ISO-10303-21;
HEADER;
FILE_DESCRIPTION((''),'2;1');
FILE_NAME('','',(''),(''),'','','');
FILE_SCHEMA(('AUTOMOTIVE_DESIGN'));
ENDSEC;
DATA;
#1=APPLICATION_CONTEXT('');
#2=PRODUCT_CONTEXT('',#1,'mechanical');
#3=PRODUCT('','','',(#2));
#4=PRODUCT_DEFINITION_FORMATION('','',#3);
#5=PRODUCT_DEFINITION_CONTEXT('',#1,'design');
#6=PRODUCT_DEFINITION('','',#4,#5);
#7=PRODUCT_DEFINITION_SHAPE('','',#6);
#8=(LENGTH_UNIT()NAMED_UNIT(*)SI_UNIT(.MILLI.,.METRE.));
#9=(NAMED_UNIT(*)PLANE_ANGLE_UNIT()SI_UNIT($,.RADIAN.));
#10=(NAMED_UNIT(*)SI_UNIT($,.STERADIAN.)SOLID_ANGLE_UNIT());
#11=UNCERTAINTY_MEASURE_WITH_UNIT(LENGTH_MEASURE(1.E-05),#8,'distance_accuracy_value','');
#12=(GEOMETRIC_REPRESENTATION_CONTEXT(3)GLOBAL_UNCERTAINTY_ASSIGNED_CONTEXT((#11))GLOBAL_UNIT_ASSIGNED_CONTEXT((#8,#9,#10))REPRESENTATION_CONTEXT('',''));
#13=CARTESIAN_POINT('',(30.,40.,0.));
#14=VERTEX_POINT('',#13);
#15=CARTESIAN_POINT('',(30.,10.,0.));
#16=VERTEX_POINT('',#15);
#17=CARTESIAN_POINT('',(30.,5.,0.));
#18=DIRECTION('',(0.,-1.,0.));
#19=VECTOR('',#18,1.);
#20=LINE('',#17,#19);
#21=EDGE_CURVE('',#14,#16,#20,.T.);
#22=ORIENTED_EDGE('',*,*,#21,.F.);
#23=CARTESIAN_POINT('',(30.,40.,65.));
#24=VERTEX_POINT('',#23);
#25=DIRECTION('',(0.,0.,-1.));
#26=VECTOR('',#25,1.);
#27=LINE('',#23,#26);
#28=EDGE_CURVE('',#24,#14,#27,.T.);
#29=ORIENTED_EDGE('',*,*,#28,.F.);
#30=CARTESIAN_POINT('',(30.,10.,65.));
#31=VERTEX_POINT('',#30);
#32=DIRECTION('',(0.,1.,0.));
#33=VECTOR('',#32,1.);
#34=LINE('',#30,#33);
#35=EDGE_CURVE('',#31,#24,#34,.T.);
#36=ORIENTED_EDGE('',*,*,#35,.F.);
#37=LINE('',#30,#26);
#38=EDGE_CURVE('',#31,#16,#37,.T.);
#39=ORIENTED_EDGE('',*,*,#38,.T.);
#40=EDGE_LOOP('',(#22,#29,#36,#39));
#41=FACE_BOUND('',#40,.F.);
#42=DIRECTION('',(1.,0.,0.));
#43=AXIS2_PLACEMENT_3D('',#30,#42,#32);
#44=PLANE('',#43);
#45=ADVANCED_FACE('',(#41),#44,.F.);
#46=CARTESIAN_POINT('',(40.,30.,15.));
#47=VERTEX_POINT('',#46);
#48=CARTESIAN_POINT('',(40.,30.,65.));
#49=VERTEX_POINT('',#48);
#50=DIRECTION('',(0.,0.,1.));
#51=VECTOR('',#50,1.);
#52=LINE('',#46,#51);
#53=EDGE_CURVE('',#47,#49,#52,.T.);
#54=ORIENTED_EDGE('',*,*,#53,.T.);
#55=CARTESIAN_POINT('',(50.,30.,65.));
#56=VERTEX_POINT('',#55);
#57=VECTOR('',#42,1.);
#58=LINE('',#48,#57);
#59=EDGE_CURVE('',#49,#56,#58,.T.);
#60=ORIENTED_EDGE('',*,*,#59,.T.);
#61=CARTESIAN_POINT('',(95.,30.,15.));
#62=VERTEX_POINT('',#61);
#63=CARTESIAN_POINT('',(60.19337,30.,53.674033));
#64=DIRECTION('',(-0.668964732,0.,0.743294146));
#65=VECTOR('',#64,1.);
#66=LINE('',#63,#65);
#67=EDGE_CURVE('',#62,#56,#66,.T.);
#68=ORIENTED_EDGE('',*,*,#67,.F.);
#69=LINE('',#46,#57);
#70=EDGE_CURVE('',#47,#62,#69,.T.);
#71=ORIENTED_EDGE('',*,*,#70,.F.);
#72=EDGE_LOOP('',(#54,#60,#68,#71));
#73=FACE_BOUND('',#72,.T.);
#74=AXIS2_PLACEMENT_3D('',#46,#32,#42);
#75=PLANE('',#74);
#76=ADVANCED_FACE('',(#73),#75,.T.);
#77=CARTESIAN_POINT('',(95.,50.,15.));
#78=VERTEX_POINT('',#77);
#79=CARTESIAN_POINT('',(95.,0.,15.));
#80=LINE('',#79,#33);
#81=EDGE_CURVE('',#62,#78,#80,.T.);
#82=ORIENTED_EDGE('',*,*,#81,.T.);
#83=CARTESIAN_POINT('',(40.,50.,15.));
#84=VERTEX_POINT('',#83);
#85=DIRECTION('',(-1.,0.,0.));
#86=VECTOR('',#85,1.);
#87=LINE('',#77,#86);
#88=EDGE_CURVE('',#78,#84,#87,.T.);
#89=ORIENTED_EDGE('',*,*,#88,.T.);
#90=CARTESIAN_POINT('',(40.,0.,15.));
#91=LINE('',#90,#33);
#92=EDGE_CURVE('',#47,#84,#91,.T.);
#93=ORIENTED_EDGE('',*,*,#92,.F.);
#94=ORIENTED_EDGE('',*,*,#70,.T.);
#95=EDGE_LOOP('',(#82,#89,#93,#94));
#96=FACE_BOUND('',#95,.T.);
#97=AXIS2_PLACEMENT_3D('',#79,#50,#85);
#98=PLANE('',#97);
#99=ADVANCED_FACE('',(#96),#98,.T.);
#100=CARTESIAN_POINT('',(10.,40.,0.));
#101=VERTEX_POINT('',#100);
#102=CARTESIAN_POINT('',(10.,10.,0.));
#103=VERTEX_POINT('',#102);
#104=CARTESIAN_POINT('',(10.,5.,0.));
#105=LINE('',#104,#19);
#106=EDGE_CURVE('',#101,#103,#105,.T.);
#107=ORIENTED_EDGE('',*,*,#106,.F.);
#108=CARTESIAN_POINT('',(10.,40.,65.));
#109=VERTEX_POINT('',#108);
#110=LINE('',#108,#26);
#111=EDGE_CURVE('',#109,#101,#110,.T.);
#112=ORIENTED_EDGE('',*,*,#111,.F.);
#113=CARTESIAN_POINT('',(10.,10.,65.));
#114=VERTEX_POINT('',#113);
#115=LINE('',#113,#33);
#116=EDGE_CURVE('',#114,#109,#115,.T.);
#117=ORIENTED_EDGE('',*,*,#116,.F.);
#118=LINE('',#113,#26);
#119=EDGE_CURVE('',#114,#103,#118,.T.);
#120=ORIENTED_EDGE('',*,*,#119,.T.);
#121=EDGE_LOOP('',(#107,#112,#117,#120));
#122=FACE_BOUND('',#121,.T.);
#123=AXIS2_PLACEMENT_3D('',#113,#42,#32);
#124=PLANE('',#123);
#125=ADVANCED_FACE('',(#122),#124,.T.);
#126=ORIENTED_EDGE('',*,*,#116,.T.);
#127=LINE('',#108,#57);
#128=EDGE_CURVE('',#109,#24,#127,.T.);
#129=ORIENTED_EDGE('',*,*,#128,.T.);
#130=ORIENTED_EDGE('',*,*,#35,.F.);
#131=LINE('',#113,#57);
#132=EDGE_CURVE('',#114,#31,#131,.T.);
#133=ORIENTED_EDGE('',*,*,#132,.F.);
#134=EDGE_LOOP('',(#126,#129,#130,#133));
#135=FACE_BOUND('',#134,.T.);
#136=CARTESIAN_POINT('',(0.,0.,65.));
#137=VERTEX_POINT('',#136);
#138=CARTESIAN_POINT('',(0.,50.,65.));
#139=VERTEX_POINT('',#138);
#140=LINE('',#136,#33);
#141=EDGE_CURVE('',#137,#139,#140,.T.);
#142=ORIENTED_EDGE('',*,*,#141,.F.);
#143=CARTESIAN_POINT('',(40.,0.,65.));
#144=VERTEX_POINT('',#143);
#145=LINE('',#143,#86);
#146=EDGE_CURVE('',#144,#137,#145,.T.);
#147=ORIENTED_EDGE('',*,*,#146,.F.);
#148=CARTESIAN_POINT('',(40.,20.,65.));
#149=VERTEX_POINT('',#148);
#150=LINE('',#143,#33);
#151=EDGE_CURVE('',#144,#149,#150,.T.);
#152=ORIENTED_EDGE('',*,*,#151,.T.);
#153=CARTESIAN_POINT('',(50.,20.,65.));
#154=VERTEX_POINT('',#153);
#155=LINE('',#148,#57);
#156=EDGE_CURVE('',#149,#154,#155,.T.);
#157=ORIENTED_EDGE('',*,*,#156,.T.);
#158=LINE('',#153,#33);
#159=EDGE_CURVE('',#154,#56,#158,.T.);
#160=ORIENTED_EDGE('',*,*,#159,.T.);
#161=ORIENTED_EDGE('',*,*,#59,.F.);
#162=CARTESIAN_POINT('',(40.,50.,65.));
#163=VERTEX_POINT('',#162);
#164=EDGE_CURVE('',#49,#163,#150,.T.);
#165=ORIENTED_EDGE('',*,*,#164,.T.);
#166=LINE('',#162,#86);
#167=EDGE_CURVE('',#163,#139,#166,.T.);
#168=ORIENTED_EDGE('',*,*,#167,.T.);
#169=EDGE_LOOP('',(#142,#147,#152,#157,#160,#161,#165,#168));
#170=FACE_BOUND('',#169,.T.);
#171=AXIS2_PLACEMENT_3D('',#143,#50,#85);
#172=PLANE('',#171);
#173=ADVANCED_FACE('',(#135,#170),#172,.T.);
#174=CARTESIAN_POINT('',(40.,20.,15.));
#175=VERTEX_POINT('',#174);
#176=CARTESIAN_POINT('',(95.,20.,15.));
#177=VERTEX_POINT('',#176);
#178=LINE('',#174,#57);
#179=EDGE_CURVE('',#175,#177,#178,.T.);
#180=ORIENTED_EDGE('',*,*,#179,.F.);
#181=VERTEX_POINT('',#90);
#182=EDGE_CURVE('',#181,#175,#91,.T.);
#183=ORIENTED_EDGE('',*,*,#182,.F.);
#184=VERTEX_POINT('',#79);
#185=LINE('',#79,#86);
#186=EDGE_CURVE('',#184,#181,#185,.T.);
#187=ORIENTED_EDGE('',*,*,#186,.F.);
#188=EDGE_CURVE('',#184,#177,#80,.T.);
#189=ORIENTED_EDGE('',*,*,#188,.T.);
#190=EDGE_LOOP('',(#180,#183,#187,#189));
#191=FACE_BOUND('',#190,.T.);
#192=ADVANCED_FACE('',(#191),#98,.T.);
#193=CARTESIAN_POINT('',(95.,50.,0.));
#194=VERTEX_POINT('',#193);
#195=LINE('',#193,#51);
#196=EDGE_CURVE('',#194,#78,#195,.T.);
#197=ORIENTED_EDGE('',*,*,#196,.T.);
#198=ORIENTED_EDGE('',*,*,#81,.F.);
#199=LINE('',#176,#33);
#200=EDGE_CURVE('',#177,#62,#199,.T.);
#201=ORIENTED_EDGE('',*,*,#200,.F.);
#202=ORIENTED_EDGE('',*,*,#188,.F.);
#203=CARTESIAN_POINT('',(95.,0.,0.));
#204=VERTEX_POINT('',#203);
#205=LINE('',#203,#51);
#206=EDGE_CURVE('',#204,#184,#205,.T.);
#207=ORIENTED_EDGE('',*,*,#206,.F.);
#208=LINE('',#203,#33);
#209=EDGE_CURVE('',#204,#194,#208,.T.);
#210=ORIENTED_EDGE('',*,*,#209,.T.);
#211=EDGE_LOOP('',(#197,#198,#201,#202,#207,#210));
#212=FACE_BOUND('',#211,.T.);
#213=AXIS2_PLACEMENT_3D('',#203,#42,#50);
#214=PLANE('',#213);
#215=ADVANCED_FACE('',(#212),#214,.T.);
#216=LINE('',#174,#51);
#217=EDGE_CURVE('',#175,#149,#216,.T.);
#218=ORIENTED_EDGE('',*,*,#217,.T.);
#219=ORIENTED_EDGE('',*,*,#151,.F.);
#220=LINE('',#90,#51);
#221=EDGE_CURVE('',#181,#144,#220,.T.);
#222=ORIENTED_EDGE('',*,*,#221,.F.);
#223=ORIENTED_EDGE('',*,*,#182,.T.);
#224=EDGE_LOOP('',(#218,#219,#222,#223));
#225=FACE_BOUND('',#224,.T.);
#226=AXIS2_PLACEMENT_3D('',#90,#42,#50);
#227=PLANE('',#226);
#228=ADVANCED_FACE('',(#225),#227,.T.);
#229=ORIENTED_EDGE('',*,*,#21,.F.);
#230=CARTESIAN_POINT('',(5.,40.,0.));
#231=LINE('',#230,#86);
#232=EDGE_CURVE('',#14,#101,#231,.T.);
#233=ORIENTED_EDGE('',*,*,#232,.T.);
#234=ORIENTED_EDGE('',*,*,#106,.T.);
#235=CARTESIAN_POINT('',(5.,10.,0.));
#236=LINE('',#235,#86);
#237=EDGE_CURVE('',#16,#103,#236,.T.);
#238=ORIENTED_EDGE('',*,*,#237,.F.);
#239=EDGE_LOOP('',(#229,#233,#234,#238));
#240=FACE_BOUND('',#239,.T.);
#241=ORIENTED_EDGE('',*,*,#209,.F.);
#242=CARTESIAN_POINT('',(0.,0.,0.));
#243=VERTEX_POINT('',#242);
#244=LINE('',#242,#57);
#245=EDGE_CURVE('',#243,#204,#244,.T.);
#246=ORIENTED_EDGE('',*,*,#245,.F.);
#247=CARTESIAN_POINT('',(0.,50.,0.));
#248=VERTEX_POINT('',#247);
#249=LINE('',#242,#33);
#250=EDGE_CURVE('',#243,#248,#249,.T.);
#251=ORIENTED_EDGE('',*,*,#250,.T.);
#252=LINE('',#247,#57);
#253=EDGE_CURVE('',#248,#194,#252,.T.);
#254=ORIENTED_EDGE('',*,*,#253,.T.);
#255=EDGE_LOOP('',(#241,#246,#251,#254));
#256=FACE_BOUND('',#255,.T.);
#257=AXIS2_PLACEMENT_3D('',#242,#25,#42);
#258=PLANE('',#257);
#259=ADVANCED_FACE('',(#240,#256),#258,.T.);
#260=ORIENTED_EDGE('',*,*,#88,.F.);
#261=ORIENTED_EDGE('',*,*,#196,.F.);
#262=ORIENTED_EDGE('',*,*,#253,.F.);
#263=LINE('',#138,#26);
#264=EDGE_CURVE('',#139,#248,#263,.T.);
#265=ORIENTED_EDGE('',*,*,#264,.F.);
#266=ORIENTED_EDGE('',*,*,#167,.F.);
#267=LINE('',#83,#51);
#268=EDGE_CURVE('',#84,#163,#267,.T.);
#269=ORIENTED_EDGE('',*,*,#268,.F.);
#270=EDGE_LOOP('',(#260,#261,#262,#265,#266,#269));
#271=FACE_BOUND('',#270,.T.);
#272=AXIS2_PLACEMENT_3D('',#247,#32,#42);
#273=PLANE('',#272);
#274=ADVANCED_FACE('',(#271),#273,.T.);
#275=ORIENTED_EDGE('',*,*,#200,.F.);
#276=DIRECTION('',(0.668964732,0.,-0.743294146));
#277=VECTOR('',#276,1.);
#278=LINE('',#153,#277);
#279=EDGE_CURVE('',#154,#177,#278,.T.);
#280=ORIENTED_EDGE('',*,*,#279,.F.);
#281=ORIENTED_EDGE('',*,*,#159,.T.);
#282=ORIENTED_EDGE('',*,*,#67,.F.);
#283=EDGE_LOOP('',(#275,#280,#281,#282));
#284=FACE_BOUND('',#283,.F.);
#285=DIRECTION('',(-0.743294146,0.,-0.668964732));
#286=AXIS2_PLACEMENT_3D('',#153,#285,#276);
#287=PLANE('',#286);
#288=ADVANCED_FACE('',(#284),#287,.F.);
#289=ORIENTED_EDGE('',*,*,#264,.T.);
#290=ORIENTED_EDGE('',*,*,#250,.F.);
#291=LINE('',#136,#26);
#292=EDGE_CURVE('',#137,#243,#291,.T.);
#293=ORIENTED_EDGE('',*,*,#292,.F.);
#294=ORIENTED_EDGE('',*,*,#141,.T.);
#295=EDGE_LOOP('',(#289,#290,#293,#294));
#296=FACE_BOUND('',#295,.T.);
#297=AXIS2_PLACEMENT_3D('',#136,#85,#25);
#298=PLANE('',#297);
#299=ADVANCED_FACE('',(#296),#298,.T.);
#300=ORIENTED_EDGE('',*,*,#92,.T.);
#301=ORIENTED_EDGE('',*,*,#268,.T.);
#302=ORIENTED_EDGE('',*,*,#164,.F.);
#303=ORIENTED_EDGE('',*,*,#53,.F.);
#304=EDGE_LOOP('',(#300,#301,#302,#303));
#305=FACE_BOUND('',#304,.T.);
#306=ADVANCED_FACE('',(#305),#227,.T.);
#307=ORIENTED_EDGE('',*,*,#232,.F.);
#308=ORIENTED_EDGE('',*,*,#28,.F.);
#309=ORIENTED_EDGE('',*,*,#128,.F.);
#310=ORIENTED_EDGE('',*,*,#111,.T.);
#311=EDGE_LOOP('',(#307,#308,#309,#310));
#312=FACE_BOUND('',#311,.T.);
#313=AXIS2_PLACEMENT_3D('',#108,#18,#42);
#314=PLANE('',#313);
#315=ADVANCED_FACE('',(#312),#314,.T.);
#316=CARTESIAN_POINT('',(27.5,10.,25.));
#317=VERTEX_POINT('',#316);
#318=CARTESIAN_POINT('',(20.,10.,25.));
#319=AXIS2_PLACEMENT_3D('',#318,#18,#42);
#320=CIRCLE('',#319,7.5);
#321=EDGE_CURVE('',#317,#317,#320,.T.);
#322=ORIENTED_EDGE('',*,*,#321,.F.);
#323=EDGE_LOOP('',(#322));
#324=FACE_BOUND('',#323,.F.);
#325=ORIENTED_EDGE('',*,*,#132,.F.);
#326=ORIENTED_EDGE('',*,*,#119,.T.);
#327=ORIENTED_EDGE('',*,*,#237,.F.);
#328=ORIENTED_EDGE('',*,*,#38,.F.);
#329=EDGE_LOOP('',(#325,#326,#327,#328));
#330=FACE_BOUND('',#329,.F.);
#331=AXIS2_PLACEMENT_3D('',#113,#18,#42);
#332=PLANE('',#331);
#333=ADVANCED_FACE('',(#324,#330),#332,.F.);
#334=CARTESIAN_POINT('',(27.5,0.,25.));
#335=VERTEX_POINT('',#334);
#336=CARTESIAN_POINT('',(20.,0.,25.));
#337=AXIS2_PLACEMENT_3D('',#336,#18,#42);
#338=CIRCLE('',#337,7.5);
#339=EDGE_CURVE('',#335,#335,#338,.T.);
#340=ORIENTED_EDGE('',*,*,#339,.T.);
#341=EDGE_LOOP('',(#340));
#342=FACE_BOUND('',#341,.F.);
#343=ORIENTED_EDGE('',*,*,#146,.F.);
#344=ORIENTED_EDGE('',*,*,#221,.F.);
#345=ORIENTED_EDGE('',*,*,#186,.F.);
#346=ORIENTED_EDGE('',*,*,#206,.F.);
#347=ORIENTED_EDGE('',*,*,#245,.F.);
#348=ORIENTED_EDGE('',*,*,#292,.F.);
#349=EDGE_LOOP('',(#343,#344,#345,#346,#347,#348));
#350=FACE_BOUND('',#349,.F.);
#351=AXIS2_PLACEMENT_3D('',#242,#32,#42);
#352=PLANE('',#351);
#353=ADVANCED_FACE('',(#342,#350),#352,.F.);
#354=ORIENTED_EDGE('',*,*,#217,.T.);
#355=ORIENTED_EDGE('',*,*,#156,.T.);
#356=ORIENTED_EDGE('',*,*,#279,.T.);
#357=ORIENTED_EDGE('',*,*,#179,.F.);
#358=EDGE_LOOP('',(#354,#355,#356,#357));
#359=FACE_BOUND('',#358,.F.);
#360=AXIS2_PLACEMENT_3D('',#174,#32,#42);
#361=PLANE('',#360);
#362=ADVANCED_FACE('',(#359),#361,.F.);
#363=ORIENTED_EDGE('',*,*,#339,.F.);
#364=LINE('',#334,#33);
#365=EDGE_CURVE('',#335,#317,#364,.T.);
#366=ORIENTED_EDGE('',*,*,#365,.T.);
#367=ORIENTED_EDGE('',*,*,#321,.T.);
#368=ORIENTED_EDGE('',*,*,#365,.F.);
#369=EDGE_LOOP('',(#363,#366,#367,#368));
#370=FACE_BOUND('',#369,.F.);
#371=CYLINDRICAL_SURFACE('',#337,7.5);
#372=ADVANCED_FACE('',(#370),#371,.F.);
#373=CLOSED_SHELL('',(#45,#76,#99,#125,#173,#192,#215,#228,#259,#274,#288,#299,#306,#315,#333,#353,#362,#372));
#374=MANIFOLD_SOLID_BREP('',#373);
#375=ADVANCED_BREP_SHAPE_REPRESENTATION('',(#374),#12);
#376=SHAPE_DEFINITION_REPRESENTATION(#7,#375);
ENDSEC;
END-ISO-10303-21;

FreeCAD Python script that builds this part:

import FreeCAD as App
import Part
import Sketcher
from FreeCAD import Vector
Q = App.Units.Quantity

doc = App.newDocument("Part")
params = doc.addObject("Spreadsheet::Sheet", "Params")
for row, (alias, value) in enumerate([
    ("sketch1_width", "95 mm"),
    ("sketch1_width2", "40 mm"),
    ("sketch1_height", "65 mm"),
    ("sketch1_height2", "50 mm"),
    ("pad1_length", "50 mm"),
    ("sketch2_width", "20 mm"),
    ("sketch2_height", "30 mm"),
    ("pocket1_length", "90 mm"),
    ("sketch3_diameter", "15 mm"),
    ("pocket2_length", "20 mm"),
    ("sketch4_width", "55 mm"),
    ("sketch4_height", "10 mm"),
    ("pad2_length", "50 mm"),
    ("sketch5_width", "45 mm"),
    ("sketch5_height", "50 mm"),
    ("pocket3_length", "65 mm"),
], start=1):
    params.set(f"A{row}", alias)
    params.set(f"B{row}", "=" + value)
    params.setAlias(f"B{row}", alias)

body = doc.addObject("PartDesign::Body", "Body")

# Sketch on XZ plane
sketch1 = body.newObject("Sketcher::SketchObject", "Sketch")
sketch1.AttachmentSupport = (doc.getObject("XZ_Plane"), [""])
sketch1.MapMode = "FlatFace"
sketch1.addGeometry(Part.LineSegment(Vector(95, 0, 0), Vector(0, 0, 0)), False)
sketch1.addGeometry(Part.LineSegment(Vector(0, 0, 0), Vector(0, 65, 0)), False)
sketch1.addGeometry(Part.LineSegment(Vector(0, 65, 0), Vector(40, 65, 0)), False)
sketch1.addGeometry(Part.LineSegment(Vector(40, 65, 0), Vector(40, 15, 0)), False)
sketch1.addGeometry(Part.LineSegment(Vector(40, 15, 0), Vector(95, 15, 0)), False)
sketch1.addGeometry(Part.LineSegment(Vector(95, 15, 0), Vector(95, 0, 0)), False)
sketch1.addConstraint(Sketcher.Constraint("Coincident", 0, 2, 1, 1))
sketch1.addConstraint(Sketcher.Constraint("Coincident", 1, 2, 2, 1))
sketch1.addConstraint(Sketcher.Constraint("Coincident", 2, 2, 3, 1))
sketch1.addConstraint(Sketcher.Constraint("Coincident", 3, 2, 4, 1))
sketch1.addConstraint(Sketcher.Constraint("Coincident", 4, 2, 5, 1))
sketch1.addConstraint(Sketcher.Constraint("Coincident", 5, 2, 0, 1))
sketch1.addConstraint(Sketcher.Constraint("Horizontal", 0))
sketch1.addConstraint(Sketcher.Constraint("Vertical", 1))
sketch1.addConstraint(Sketcher.Constraint("Horizontal", 2))
sketch1.addConstraint(Sketcher.Constraint("Vertical", 3))
sketch1.addConstraint(Sketcher.Constraint("Horizontal", 4))
sketch1.addConstraint(Sketcher.Constraint("Vertical", 5))
sketch1.addConstraint(Sketcher.Constraint("Coincident", 0, 2, -1, 1))
sketch1.addConstraint(Sketcher.Constraint("DistanceX", 0, 2, 0, 1, Q("95 mm")))
sketch1.addConstraint(Sketcher.Constraint("DistanceX", 2, 1, 2, 2, Q("40 mm")))
sketch1.addConstraint(Sketcher.Constraint("DistanceY", 1, 1, 1, 2, Q("65 mm")))
sketch1.addConstraint(Sketcher.Constraint("DistanceY", 3, 2, 3, 1, Q("50 mm")))
sketch1.setExpression("Constraints[13]", "Params.sketch1_width")
sketch1.setExpression("Constraints[14]", "Params.sketch1_width2")
sketch1.setExpression("Constraints[15]", "Params.sketch1_height")
sketch1.setExpression("Constraints[16]", "Params.sketch1_height2")
pad1 = body.newObject("PartDesign::Pad", "Pad")
pad1.Profile = sketch1
pad1.setExpression("Length", "Params.pad1_length")
pad1.Reversed = True

# Sketch on XY plane
sketch2 = body.newObject("Sketcher::SketchObject", "Sketch001")
sketch2.AttachmentSupport = (doc.getObject("XY_Plane"), [""])
sketch2.MapMode = "FlatFace"
sketch2.AttachmentOffset = App.Placement(Vector(0, 0, 65), App.Rotation())
sketch2.addGeometry(Part.LineSegment(Vector(10, 40, 0), Vector(10, 10, 0)), False)
sketch2.addGeometry(Part.LineSegment(Vector(10, 10, 0), Vector(30, 10, 0)), False)
sketch2.addGeometry(Part.LineSegment(Vector(30, 10, 0), Vector(30, 40, 0)), False)
sketch2.addGeometry(Part.LineSegment(Vector(30, 40, 0), Vector(10, 40, 0)), False)
sketch2.addConstraint(Sketcher.Constraint("Coincident", 0, 2, 1, 1))
sketch2.addConstraint(Sketcher.Constraint("Coincident", 1, 2, 2, 1))
sketch2.addConstraint(Sketcher.Constraint("Coincident", 2, 2, 3, 1))
sketch2.addConstraint(Sketcher.Constraint("Coincident", 3, 2, 0, 1))
sketch2.addConstraint(Sketcher.Constraint("Vertical", 0))
sketch2.addConstraint(Sketcher.Constraint("Horizontal", 1))
sketch2.addConstraint(Sketcher.Constraint("Vertical", 2))
sketch2.addConstraint(Sketcher.Constraint("Horizontal", 3))
sketch2.addConstraint(Sketcher.Constraint("DistanceX", 1, 1, 1, 2, Q("20 mm")))
sketch2.addConstraint(Sketcher.Constraint("DistanceY", 0, 2, 0, 1, Q("30 mm")))
sketch2.addConstraint(Sketcher.Constraint("DistanceX", -1, 1, 0, 2, Q("10 mm")))
sketch2.addConstraint(Sketcher.Constraint("DistanceY", -1, 1, 0, 2, Q("10 mm")))
sketch2.setExpression("Constraints[8]", "Params.sketch2_width")
sketch2.setExpression("Constraints[9]", "Params.sketch2_height")
pocket1 = body.newObject("PartDesign::Pocket", "Pocket")
pocket1.Profile = sketch2
pocket1.setExpression("Length", "Params.pocket1_length")

# Sketch on XZ plane
sketch3 = body.newObject("Sketcher::SketchObject", "Sketch002")
sketch3.AttachmentSupport = (doc.getObject("XZ_Plane"), [""])
sketch3.MapMode = "FlatFace"
sketch3.addGeometry(Part.Circle(Vector(20, 25, 0), Vector(0, 0, 1), 7.5), False)
sketch3.addConstraint(Sketcher.Constraint("Diameter", 0, Q("15 mm")))
sketch3.addConstraint(Sketcher.Constraint("DistanceY", -1, 1, 0, 3, Q("25 mm")))
sketch3.addConstraint(Sketcher.Constraint("DistanceX", -1, 1, 0, 3, Q("20 mm")))
sketch3.setExpression("Constraints[0]", "Params.sketch3_diameter")
pocket2 = body.newObject("PartDesign::Pocket", "Pocket001")
pocket2.Profile = sketch3
pocket2.setExpression("Length", "Params.pocket2_length")

# Sketch on XY plane
sketch4 = body.newObject("Sketcher::SketchObject", "Sketch003")
sketch4.AttachmentSupport = (doc.getObject("XY_Plane"), [""])
sketch4.MapMode = "FlatFace"
sketch4.AttachmentOffset = App.Placement(Vector(0, 0, 15), App.Rotation())
sketch4.addGeometry(Part.LineSegment(Vector(40, 30, 0), Vector(40, 20, 0)), False)
sketch4.addGeometry(Part.LineSegment(Vector(40, 20, 0), Vector(95, 20, 0)), False)
sketch4.addGeometry(Part.LineSegment(Vector(95, 20, 0), Vector(95, 30, 0)), False)
sketch4.addGeometry(Part.LineSegment(Vector(95, 30, 0), Vector(40, 30, 0)), False)
sketch4.addConstraint(Sketcher.Constraint("Coincident", 0, 2, 1, 1))
sketch4.addConstraint(Sketcher.Constraint("Coincident", 1, 2, 2, 1))
sketch4.addConstraint(Sketcher.Constraint("Coincident", 2, 2, 3, 1))
sketch4.addConstraint(Sketcher.Constraint("Coincident", 3, 2, 0, 1))
sketch4.addConstraint(Sketcher.Constraint("Vertical", 0))
sketch4.addConstraint(Sketcher.Constraint("Horizontal", 1))
sketch4.addConstraint(Sketcher.Constraint("Vertical", 2))
sketch4.addConstraint(Sketcher.Constraint("Horizontal", 3))
sketch4.addConstraint(Sketcher.Constraint("DistanceX", 1, 1, 1, 2, Q("55 mm")))
sketch4.addConstraint(Sketcher.Constraint("DistanceY", 0, 2, 0, 1, Q("10 mm")))
sketch4.addConstraint(Sketcher.Constraint("DistanceX", -1, 1, 0, 2, Q("40 mm")))
sketch4.addConstraint(Sketcher.Constraint("DistanceY", -1, 1, 0, 2, Q("20 mm")))
sketch4.setExpression("Constraints[8]", "Params.sketch4_width")
sketch4.setExpression("Constraints[9]", "Params.sketch4_height")
pad2 = body.newObject("PartDesign::Pad", "Pad001")
pad2.Profile = sketch4
pad2.setExpression("Length", "Params.pad2_length")

# Sketch on XZ plane
sketch5 = body.newObject("Sketcher::SketchObject", "Sketch004")
sketch5.AttachmentSupport = (doc.getObject("XZ_Plane"), [""])
sketch5.MapMode = "FlatFace"
sketch5.AttachmentOffset = App.Placement(Vector(0, 0, -20), App.Rotation())
sketch5.addGeometry(Part.LineSegment(Vector(50, 65, 0), Vector(95, 15, 0)), False)
sketch5.addGeometry(Part.LineSegment(Vector(95, 15, 0), Vector(95, 65, 0)), False)
sketch5.addGeometry(Part.LineSegment(Vector(95, 65, 0), Vector(50, 65, 0)), False)
sketch5.addConstraint(Sketcher.Constraint("Coincident", 0, 2, 1, 1))
sketch5.addConstraint(Sketcher.Constraint("Coincident", 1, 2, 2, 1))
sketch5.addConstraint(Sketcher.Constraint("Coincident", 2, 2, 0, 1))
sketch5.addConstraint(Sketcher.Constraint("Vertical", 1))
sketch5.addConstraint(Sketcher.Constraint("Horizontal", 2))
sketch5.addConstraint(Sketcher.Constraint("DistanceX", 2, 2, 2, 1, Q("45 mm")))
sketch5.addConstraint(Sketcher.Constraint("DistanceY", 1, 1, 1, 2, Q("50 mm")))
sketch5.addConstraint(Sketcher.Constraint("DistanceX", -1, 1, 0, 2, Q("95 mm")))
sketch5.addConstraint(Sketcher.Constraint("DistanceY", -1, 1, 0, 2, Q("15 mm")))
sketch5.setExpression("Constraints[5]", "Params.sketch5_width")
sketch5.setExpression("Constraints[6]", "Params.sketch5_height")
pocket3 = body.newObject("PartDesign::Pocket", "Pocket002")
pocket3.Profile = sketch5
pocket3.setExpression("Length", "Params.pocket3_length")

doc.recompute()
